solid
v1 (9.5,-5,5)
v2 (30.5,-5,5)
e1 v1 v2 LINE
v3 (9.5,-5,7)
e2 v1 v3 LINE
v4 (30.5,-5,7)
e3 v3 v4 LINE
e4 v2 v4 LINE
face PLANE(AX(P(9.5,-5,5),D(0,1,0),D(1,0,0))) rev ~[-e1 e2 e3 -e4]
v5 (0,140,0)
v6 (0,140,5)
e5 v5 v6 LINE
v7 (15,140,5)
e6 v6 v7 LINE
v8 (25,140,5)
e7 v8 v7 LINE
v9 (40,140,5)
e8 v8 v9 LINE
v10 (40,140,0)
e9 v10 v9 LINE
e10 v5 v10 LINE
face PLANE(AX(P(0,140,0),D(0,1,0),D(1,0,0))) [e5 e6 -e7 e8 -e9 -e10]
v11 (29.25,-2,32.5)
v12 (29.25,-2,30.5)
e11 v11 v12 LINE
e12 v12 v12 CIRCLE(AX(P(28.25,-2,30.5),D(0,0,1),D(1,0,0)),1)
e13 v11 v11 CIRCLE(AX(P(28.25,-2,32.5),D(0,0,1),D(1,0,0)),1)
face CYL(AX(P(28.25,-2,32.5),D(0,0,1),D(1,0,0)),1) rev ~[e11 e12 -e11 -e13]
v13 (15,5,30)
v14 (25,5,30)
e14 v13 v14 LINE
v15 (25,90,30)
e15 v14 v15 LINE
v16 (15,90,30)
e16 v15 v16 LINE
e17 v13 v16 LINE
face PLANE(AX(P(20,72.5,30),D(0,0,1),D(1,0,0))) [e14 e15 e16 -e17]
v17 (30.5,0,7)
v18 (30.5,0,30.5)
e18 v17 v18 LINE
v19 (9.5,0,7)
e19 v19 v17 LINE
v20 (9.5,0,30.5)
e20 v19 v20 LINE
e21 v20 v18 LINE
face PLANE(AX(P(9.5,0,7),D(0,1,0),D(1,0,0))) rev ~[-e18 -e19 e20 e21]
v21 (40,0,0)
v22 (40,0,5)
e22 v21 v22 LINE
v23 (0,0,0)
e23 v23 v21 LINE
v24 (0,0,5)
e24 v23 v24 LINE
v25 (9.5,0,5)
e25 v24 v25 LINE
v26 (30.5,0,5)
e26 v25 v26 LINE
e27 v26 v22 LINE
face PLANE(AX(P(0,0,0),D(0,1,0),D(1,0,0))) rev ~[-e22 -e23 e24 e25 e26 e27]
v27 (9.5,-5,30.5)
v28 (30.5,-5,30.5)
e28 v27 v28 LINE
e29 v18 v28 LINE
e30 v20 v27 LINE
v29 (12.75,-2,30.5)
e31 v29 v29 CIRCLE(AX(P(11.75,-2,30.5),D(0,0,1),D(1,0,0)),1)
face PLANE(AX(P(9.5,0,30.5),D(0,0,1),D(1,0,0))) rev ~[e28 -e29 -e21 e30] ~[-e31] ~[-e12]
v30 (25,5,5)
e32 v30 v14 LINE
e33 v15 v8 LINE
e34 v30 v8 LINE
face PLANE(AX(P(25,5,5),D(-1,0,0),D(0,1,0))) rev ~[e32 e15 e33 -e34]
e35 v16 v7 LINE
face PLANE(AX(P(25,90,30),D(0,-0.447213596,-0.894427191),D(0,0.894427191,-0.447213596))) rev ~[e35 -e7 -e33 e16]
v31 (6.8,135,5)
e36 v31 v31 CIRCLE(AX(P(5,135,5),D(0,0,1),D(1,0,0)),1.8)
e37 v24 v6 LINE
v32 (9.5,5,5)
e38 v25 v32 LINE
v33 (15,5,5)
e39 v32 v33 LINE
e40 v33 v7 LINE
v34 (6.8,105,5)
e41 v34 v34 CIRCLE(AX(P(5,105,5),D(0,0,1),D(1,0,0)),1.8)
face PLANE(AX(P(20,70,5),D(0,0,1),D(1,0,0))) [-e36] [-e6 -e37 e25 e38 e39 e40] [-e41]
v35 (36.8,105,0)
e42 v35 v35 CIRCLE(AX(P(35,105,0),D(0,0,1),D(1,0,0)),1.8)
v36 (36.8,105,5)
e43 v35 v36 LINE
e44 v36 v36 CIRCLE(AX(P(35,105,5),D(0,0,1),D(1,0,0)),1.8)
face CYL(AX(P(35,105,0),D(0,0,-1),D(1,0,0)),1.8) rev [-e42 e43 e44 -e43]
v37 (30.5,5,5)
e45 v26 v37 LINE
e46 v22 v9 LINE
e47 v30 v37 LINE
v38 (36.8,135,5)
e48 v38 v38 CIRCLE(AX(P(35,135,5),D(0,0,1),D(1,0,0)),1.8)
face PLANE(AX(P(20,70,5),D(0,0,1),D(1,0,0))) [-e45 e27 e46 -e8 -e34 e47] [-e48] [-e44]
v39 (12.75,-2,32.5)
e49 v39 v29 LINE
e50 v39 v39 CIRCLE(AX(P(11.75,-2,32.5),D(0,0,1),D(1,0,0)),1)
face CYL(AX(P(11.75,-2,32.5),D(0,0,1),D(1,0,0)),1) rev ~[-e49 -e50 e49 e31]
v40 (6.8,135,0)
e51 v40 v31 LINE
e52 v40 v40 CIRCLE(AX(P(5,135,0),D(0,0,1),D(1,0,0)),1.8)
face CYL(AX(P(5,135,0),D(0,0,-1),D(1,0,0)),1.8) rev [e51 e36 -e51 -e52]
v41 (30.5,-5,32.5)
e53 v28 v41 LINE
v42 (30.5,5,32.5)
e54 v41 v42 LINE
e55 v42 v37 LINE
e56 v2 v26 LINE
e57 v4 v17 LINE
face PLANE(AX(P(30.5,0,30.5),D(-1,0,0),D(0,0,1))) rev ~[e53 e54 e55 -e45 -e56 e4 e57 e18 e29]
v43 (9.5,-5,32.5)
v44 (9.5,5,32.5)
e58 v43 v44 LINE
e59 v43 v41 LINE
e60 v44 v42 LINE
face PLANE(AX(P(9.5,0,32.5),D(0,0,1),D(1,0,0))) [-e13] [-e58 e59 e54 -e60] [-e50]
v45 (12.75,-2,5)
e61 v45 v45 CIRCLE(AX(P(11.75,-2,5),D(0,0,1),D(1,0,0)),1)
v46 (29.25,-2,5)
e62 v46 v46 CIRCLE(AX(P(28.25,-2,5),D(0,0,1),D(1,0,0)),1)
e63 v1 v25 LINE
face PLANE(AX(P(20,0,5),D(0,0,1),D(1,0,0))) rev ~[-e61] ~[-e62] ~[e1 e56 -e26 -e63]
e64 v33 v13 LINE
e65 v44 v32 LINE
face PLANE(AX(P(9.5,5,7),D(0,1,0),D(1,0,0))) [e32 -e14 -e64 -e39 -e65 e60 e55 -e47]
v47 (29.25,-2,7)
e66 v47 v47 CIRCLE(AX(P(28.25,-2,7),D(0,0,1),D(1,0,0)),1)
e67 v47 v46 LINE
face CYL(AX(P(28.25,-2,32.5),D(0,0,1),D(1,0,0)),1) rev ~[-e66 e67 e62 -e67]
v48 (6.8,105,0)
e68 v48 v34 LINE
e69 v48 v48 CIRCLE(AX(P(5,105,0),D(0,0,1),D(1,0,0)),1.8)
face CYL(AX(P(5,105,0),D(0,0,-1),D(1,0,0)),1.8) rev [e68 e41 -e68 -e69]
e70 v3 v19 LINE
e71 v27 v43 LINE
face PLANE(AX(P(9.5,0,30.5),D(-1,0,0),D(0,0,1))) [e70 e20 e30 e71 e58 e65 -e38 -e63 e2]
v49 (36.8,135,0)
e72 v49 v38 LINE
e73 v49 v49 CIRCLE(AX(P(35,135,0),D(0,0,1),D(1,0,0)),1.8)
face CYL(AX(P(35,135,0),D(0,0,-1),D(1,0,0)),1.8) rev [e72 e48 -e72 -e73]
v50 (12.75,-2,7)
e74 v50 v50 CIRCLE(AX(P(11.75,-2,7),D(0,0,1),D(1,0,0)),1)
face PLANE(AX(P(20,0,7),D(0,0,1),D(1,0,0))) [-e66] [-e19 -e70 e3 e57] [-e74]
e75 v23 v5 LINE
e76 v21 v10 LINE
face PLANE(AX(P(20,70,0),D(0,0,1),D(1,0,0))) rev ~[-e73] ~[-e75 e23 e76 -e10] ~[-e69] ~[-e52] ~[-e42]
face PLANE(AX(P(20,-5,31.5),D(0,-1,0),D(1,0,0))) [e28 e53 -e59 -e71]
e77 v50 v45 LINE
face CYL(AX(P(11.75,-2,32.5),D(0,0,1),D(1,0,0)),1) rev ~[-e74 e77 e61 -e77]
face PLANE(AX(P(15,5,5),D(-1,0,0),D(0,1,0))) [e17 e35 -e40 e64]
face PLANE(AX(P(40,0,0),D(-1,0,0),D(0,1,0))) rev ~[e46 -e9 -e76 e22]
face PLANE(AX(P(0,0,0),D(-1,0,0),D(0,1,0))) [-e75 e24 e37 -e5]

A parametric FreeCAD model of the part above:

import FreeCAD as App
import Part
import Sketcher
from FreeCAD import Vector


def add_polygon(sketch, points):
    """Adds a closed chain of lines whose ends are joined by coincident constraints."""
    first, n = sketch.GeometryCount, len(points)
    for a, b in zip(points, points[1:] + points[:1]):
        sketch.addGeometry(Part.LineSegment(App.Vector(*a, 0), App.Vector(*b, 0)), False)
    for i in range(n):
        sketch.addConstraint(Sketcher.Constraint("Coincident", first + i, 2, first + (i + 1) % n, 1))

doc = App.newDocument("Part")
body = doc.addObject("PartDesign::Body", "Body")

sketch1 = doc.addObject("Sketcher::SketchObject", "Sketch")
body.addObject(sketch1)
sketch1.AttachmentSupport = (doc.XY_Plane, [""])
sketch1.MapMode = "FlatFace"
add_polygon(sketch1, [(0, 140), (0, 0), (40, 0), (40, 140)])
sketch1.addGeometry(Part.Circle(Vector(5, 105, 0), Vector(0, 0, 1), 1.8), False)
sketch1.addGeometry(Part.Circle(Vector(35, 105, 0), Vector(0, 0, 1), 1.8), False)
sketch1.addGeometry(Part.Circle(Vector(5, 135, 0), Vector(0, 0, 1), 1.8), False)
sketch1.addGeometry(Part.Circle(Vector(35, 135, 0), Vector(0, 0, 1), 1.8), False)
sketch1.addConstraint([
    Sketcher.Constraint("Vertical", 0),
    Sketcher.Constraint("Horizontal", 1),
    Sketcher.Constraint("Vertical", 2),
    Sketcher.Constraint("Horizontal", 3),
    Sketcher.Constraint("Coincident", 0, 2, -1, 1),
    Sketcher.Constraint("Equal", 4, 5),
    Sketcher.Constraint("Equal", 5, 6),
    Sketcher.Constraint("Equal", 6, 7),
    Sketcher.Constraint("Horizontal", 4, 3, 5, 3),
    Sketcher.Constraint("Horizontal", 6, 3, 7, 3),
    Sketcher.Constraint("Vertical", 4, 3, 6, 3),
    Sketcher.Constraint("Vertical", 5, 3, 7, 3),
    Sketcher.Constraint("Diameter", 4, 3.6),
    Sketcher.Constraint("DistanceX", 1, 1, 1, 2, 40.0),
    Sketcher.Constraint("DistanceY", 0, 2, 0, 1, 140.0),
    Sketcher.Constraint("DistanceX", -1, 1, 4, 3, 5.0),
    Sketcher.Constraint("DistanceY", -1, 1, 4, 3, 105.0),
    Sketcher.Constraint("DistanceX", -1, 1, 5, 3, 35.0),
    Sketcher.Constraint("DistanceY", -1, 1, 6, 3, 135.0),
])
pad1 = doc.addObject("PartDesign::Pad", "Pad")
body.addObject(pad1)
pad1.Profile = sketch1
pad1.Length = 5

sketch2 = doc.addObject("Sketcher::SketchObject", "Sketch001")
body.addObject(sketch2)
sketch2.AttachmentSupport = (doc.XY_Plane, [""])
sketch2.MapMode = "FlatFace"
sketch2.AttachmentOffset = App.Placement(Vector(0, 0, 5), App.Rotation())
add_polygon(sketch2, [(10, 5), (10, -5), (30, -5), (30, 5)])
sketch2.addConstraint([
    Sketcher.Constraint("Vertical", 0),
    Sketcher.Constraint("Horizontal", 1),
    Sketcher.Constraint("Vertical", 2),
    Sketcher.Constraint("Horizontal", 3),
    Sketcher.Constraint("DistanceX", 1, 1, 1, 2, 21.0),
    Sketcher.Constraint("DistanceY", 0, 2, 0, 1, 10.0),
    Sketcher.Constraint("DistanceY", 0, 2, -1, 1, 5.0),
    Sketcher.Constraint("DistanceX", -1, 1, 0, 2, 9.5),
])
pad2 = doc.addObject("PartDesign::Pad", "Pad001")
body.addObject(pad2)
pad2.Profile = sketch2
pad2.Length = 2

sketch3 = doc.addObject("Sketcher::SketchObject", "Sketch002")
body.addObject(sketch3)
sketch3.AttachmentSupport = (doc.XY_Plane, [""])
sketch3.MapMode = "FlatFace"
sketch3.AttachmentOffset = App.Placement(Vector(0, 0, 7), App.Rotation())
add_polygon(sketch3, [(10, 5), (10, 0), (30, 0), (30, 5)])
sketch3.addConstraint([
    Sketcher.Constraint("Vertical", 0),
    Sketcher.Constraint("Horizontal", 1),
    Sketcher.Constraint("Vertical", 2),
    Sketcher.Constraint("Horizontal", 3),
    Sketcher.Constraint("PointOnObject", 0, 2, -1),
    Sketcher.Constraint("DistanceX", 1, 1, 1, 2, 21.0),
    Sketcher.Constraint("DistanceY", 0, 2, 0, 1, 5.0),
    Sketcher.Constraint("DistanceX", -1, 1, 0, 2, 9.5),
])
pad3 = doc.addObject("PartDesign::Pad", "Pad002")
body.addObject(pad3)
pad3.Profile = sketch3
pad3.Length = 25.5

sketch4 = doc.addObject("Sketcher::SketchObject", "Sketch003")
body.addObject(sketch4)
sketch4.AttachmentSupport = (doc.XZ_Plane, [""])
sketch4.MapMode = "FlatFace"
add_polygon(sketch4, [(9.5, 32.5), (9.5, 30.5), (30.5, 30.5), (30.5, 32.5)])
sketch4.addConstraint([
    Sketcher.Constraint("Vertical", 0),
    Sketcher.Constraint("Horizontal", 1),
    Sketcher.Constraint("Vertical", 2),
    Sketcher.Constraint("Horizontal", 3),
    Sketcher.Constraint("DistanceX", 1, 1, 1, 2, 21.0),
    Sketcher.Constraint("DistanceY", 0, 2, 0, 1, 2.0),
    Sketcher.Constraint("DistanceX", -1, 1, 0, 2, 9.5),
    Sketcher.Constraint("DistanceY", -1, 1, 0, 2, 30.5),
])
pad4 = doc.addObject("PartDesign::Pad", "Pad003")
body.addObject(pad4)
pad4.Profile = sketch4
pad4.Length = 5

sketch5 = doc.addObject("Sketcher::SketchObject", "Sketch004")
body.addObject(sketch5)
sketch5.AttachmentSupport = (doc.XY_Plane, [""])
sketch5.MapMode = "FlatFace"
sketch5.AttachmentOffset = App.Placement(Vector(0, 0, 32.5), App.Rotation())
sketch5.addGeometry([
    Part.Circle(Vector(11.8, -2, 0), Vector(0, 0, 1), 1),
    Part.Circle(Vector(28.2, -2, 0), Vector(0, 0, 1), 1),
], False)
sketch5.addConstraint([
    Sketcher.Constraint("Equal", 0, 1),
    Sketcher.Constraint("Horizontal", 0, 3, 1, 3),
    Sketcher.Constraint("Diameter", 0, 2.0),
    Sketcher.Constraint("DistanceY", 0, 3, -1, 1, 2.0),
    Sketcher.Constraint("DistanceX", 0, 3, 1, 3, 16.5),
    Sketcher.Constraint("DistanceX", -1, 1, 0, 3, 11.75),
])
pocket1 = doc.addObject("PartDesign::Pocket", "Pocket")
body.addObject(pocket1)
pocket1.Profile = sketch5
pocket1.Length = 100

sketch6 = doc.addObject("Sketcher::SketchObject", "Sketch005")
body.addObject(sketch6)
sketch6.AttachmentSupport = (doc.XY_Plane, [""])
sketch6.MapMode = "FlatFace"
sketch6.AttachmentOffset = App.Placement(Vector(0, 0, 5), App.Rotation())
add_polygon(sketch6, [(15, 140), (15, 5), (25, 5), (25, 140)])
sketch6.addConstraint([
    Sketcher.Constraint("Vertical", 0),
    Sketcher.Constraint("Horizontal", 1),
    Sketcher.Constraint("Vertical", 2),
    Sketcher.Constraint("Horizontal", 3),
    Sketcher.Constraint("DistanceX", 1, 1, 1, 2, 10.0),
    Sketcher.Constraint("DistanceY", 0, 2, 0, 1, 135.0),
    Sketcher.Constraint("DistanceX", -1, 1, 0, 2, 15.0),
    Sketcher.Constraint("DistanceY", -1, 1, 0, 2, 5.0),
])
pad5 = doc.addObject("PartDesign::Pad", "Pad004")
body.addObject(pad5)
pad5.Profile = sketch6
pad5.Length = 25

sketch7 = doc.addObject("Sketcher::SketchObject", "Sketch006")
body.addObject(sketch7)
sketch7.AttachmentSupport = (doc.YZ_Plane, [""])
sketch7.MapMode = "FlatFace"
sketch7.AttachmentOffset = App.Placement(Vector(0, 0, 25), App.Rotation())
add_polygon(sketch7, [(90, 30), (140, 5), (160, 5), (160, 50), (90, 50)])
sketch7.addConstraint([
    Sketcher.Constraint("Horizontal", 1),
    Sketcher.Constraint("Vertical", 2),
    Sketcher.Constraint("Horizontal", 3),
    Sketcher.Constraint("Vertical", 4),
    Sketcher.Constraint("Equal", 1, 4),
    Sketcher.Constraint("DistanceX", 1, 1, 1, 2, 20.0),
    Sketcher.Constraint("DistanceX", 3, 2, 3, 1, 70.0),
    Sketcher.Constraint("DistanceY", 2, 1, 2, 2, 45.0),
    Sketcher.Constraint("DistanceX", -1, 1, 0, 2, 140.0),
    Sketcher.Constraint("DistanceY", -1, 1, 0, 2, 5.0),
])
pocket2 = doc.addObject("PartDesign::Pocket", "Pocket001")
body.addObject(pocket2)
pocket2.Profile = sketch7
pocket2.Length = 10

doc.recompute()
